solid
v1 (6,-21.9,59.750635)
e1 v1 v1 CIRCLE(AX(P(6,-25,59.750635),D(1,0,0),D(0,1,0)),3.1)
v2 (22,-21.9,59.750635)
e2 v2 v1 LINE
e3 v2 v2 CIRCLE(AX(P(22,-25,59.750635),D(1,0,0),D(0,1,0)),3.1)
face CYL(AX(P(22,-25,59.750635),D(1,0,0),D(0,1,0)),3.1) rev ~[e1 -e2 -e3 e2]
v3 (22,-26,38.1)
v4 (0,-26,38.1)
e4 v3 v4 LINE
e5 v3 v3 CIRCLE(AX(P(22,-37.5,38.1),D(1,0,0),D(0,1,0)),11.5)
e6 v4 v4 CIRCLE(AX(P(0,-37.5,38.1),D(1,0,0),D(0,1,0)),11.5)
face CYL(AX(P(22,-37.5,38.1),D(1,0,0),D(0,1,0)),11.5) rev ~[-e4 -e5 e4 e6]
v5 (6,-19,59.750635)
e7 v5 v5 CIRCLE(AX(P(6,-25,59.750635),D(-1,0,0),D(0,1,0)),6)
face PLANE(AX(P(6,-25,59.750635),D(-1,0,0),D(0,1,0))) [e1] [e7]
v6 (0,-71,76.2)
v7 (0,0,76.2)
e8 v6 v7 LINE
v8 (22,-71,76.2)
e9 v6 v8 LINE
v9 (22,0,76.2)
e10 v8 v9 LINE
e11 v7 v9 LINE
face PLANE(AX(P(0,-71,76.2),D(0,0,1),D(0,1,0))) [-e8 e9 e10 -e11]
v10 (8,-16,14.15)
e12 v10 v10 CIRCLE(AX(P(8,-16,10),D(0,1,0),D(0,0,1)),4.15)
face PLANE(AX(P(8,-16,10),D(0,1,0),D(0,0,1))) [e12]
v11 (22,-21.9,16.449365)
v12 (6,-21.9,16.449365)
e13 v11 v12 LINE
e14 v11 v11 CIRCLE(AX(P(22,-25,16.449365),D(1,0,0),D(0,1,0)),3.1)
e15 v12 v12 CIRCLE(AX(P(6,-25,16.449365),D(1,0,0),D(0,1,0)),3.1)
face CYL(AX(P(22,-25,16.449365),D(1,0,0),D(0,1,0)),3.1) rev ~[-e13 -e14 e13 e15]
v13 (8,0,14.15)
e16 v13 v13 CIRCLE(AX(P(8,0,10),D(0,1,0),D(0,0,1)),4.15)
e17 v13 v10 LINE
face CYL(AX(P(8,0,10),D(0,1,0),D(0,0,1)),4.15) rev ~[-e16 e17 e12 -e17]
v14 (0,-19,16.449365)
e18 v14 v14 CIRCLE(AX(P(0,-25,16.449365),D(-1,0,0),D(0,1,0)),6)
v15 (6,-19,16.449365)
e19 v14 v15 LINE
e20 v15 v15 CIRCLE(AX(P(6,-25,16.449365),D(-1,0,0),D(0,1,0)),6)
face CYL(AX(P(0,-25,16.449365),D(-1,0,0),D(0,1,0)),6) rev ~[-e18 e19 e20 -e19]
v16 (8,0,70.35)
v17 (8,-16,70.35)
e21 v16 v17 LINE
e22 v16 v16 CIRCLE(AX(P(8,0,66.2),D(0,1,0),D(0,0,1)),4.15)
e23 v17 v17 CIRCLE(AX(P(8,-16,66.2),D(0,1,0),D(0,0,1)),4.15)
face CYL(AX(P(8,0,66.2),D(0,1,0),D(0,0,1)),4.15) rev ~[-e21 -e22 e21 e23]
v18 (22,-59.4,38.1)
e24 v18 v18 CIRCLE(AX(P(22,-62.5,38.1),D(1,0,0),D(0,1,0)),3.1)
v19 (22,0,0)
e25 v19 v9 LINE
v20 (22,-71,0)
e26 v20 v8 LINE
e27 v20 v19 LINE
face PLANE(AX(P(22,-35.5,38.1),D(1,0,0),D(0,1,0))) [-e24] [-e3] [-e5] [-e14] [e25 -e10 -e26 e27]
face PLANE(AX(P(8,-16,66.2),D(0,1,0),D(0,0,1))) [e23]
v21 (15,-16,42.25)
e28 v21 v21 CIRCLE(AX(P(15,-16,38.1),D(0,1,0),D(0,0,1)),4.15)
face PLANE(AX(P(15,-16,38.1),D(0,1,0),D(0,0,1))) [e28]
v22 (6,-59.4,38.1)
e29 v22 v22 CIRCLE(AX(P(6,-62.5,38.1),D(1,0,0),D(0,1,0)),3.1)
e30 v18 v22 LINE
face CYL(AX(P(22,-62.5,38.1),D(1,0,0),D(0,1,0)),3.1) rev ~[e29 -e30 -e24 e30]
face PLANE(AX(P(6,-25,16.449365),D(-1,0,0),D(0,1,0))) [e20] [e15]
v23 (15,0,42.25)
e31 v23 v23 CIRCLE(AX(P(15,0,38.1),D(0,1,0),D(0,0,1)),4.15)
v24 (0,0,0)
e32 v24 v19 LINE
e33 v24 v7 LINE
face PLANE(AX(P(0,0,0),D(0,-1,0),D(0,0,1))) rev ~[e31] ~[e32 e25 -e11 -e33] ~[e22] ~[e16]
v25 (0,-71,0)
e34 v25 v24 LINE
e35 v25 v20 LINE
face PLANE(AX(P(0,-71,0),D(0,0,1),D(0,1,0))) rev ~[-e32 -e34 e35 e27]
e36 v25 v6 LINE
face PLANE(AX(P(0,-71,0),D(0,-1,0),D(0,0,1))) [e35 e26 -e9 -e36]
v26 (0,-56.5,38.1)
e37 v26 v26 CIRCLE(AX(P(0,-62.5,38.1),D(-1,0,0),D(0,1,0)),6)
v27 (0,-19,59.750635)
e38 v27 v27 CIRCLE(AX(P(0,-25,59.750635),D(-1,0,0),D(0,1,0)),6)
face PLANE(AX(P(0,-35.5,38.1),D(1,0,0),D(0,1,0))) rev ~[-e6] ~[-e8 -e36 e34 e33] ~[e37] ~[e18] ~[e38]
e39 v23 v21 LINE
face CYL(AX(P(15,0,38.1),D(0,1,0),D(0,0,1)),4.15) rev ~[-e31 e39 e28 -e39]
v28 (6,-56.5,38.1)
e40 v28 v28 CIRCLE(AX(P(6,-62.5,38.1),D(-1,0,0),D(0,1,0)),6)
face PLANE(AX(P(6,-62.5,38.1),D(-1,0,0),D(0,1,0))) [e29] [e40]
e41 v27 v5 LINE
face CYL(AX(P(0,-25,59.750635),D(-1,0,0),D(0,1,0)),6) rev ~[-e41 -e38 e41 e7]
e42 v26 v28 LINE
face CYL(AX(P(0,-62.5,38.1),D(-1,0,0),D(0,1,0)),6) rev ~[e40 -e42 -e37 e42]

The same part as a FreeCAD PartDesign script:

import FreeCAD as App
import Part
import Sketcher
Q = App.Units.Quantity


def add_polygon(sketch, points):
    """Adds a closed chain of lines whose ends are joined by coincident constraints."""
    first, n = sketch.GeometryCount, len(points)
    for a, b in zip(points, points[1:] + points[:1]):
        sketch.addGeometry(Part.LineSegment(App.Vector(*a, 0), App.Vector(*b, 0)), False)
    for i in range(n):
        sketch.addConstraint(Sketcher.Constraint("Coincident", first + i, 2, first + (i + 1) % n, 1))

doc = App.newDocument("Part")
body = doc.addObject("PartDesign::Body", "Body")

# Sketch on YZ plane
sketch1 = body.newObject("Sketcher::SketchObject", "Sketch")
sketch1.AttachmentSupport = (doc.getObject("YZ_Plane"), [""])
sketch1.MapMode = "FlatFace"
add_polygon(sketch1, [(-71, 76.2), (-71, 0), (0, 0), (0, 76.2)])  # lines 0-3
sketch1.addConstraint([
    Sketcher.Constraint("Vertical", 0),
    Sketcher.Constraint("Horizontal", 1),
    Sketcher.Constraint("Vertical", 2),
    Sketcher.Constraint("Horizontal", 3),
    Sketcher.Constraint("Coincident", 1, 2, -1, 1),
    Sketcher.Constraint("DistanceX", 1, 1, 1, 2, Q("71 mm")),
    Sketcher.Constraint("DistanceY", 0, 2, 0, 1, Q("76.2 mm")),
])
pad1 = body.newObject("PartDesign::Pad", "Pad")
pad1.Profile = sketch1
pad1.Length = 22

# Sketch on YZ plane
sketch2 = body.newObject("Sketcher::SketchObject", "Sketch001")
sketch2.AttachmentSupport = (doc.getObject("YZ_Plane"), [""])
sketch2.MapMode = "FlatFace"
sketch2.AttachmentOffset = App.Placement(App.Vector(0, 0, 22), App.Rotation())
sketch2.addGeometry([
    Part.Circle(App.Vector(-37.5, 38.1, 0), App.Vector(0, 0, 1), 11.5),
    Part.Circle(App.Vector(-25, 16.449365, 0), App.Vector(0, 0, 1), 3.1),
    Part.Circle(App.Vector(-25, 59.750635, 0), App.Vector(0, 0, 1), 3.1),
    Part.Circle(App.Vector(-62.5, 38.1, 0), App.Vector(0, 0, 1), 3.1),
], False)
sketch2.addConstraint([
    Sketcher.Constraint("Equal", 1, 2),
    Sketcher.Constraint("Equal", 2, 3),
    Sketcher.Constraint("Horizontal", 0, 3, 3, 3),
    Sketcher.Constraint("Vertical", 1, 3, 2, 3),
    Sketcher.Constraint("Diameter", 0, Q("23 mm")),
    Sketcher.Constraint("Diameter", 1, Q("6.2 mm")),
    Sketcher.Constraint("DistanceX", 1, 3, -1, 1, Q("25 mm")),
    Sketcher.Constraint("DistanceX", 3, 3, 0, 3, Q("25 mm")),
    Sketcher.Constraint("DistanceX", 0, 3, -1, 1, Q("37.5 mm")),
    Sketcher.Constraint("DistanceY", -1, 1, 0, 3, Q("38.1 mm")),
    Sketcher.Constraint("DistanceY", 1, 3, 2, 3, Q("43.30127 mm")),
    Sketcher.Constraint("DistanceY", -1, 1, 1, 3, Q("16.449365 mm")),
])
pocket1 = body.newObject("PartDesign::Pocket", "Pocket")
pocket1.Profile = sketch2
pocket1.Length = 30

# Sketch on XZ plane
sketch3 = body.newObject("Sketcher::SketchObject", "Sketch002")
sketch3.AttachmentSupport = (doc.getObject("XZ_Plane"), [""])
sketch3.MapMode = "FlatFace"
sketch3.addGeometry([
    Part.Circle(App.Vector(8, 10, 0), App.Vector(0, 0, 1), 4.15),
    Part.Circle(App.Vector(8, 66.2, 0), App.Vector(0, 0, 1), 4.15),
    Part.Circle(App.Vector(15, 38.1, 0), App.Vector(0, 0, 1), 4.15),
], False)
sketch3.addConstraint([
    Sketcher.Constraint("Equal", 0, 1),
    Sketcher.Constraint("Equal", 1, 2),
    Sketcher.Constraint("Vertical", 0, 3, 1, 3),
    Sketcher.Constraint("Diameter", 0, Q("8.3 mm")),
    Sketcher.Constraint("DistanceX", -1, 1, 0, 3, Q("8 mm")),
    Sketcher.Constraint("DistanceY", -1, 1, 0, 3, Q("10 mm")),
    Sketcher.Constraint("DistanceX", -1, 1, 2, 3, Q("15 mm")),
    Sketcher.Constraint("DistanceY", -1, 1, 1, 3, Q("66.2 mm")),
    Sketcher.Constraint("DistanceY", -1, 1, 2, 3, Q("38.1 mm")),
])
pocket2 = body.newObject("PartDesign::Pocket", "Pocket001")
pocket2.Profile = sketch3
pocket2.Length = 16
pocket2.Reversed = True

# Sketch on YZ plane
sketch4 = body.newObject("Sketcher::SketchObject", "Sketch003")
sketch4.AttachmentSupport = (doc.getObject("YZ_Plane"), [""])
sketch4.MapMode = "FlatFace"
sketch4.addGeometry([
    Part.Circle(App.Vector(-25, 59.750635, 0), App.Vector(0, 0, 1), 6),
    Part.Circle(App.Vector(-25, 16.449365, 0), App.Vector(0, 0, 1), 6),
    Part.Circle(App.Vector(-62.5, 38.1, 0), App.Vector(0, 0, 1), 6),
], False)
sketch4.addConstraint([
    Sketcher.Constraint("Equal", 0, 1),
    Sketcher.Constraint("Equal", 1, 2),
    Sketcher.Constraint("Vertical", 0, 3, 1, 3),
    Sketcher.Constraint("Diameter", 0, Q("12 mm")),
    Sketcher.Constraint("DistanceX", 0, 3, -1, 1, Q("25 mm")),
    Sketcher.Constraint("DistanceX", 2, 3, -1, 1, Q("62.5 mm")),
    Sketcher.Constraint("DistanceY", -1, 1, 2, 3, Q("38.1 mm")),
    Sketcher.Constraint("DistanceY", 1, 3, 0, 3, Q("43.30127 mm")),
    Sketcher.Constraint("DistanceY", -1, 1, 0, 3, Q("59.750635 mm")),
])
pocket3 = body.newObject("PartDesign::Pocket", "Pocket002")
pocket3.Profile = sketch4
pocket3.Length = 6
pocket3.Reversed = True

doc.recompute()
